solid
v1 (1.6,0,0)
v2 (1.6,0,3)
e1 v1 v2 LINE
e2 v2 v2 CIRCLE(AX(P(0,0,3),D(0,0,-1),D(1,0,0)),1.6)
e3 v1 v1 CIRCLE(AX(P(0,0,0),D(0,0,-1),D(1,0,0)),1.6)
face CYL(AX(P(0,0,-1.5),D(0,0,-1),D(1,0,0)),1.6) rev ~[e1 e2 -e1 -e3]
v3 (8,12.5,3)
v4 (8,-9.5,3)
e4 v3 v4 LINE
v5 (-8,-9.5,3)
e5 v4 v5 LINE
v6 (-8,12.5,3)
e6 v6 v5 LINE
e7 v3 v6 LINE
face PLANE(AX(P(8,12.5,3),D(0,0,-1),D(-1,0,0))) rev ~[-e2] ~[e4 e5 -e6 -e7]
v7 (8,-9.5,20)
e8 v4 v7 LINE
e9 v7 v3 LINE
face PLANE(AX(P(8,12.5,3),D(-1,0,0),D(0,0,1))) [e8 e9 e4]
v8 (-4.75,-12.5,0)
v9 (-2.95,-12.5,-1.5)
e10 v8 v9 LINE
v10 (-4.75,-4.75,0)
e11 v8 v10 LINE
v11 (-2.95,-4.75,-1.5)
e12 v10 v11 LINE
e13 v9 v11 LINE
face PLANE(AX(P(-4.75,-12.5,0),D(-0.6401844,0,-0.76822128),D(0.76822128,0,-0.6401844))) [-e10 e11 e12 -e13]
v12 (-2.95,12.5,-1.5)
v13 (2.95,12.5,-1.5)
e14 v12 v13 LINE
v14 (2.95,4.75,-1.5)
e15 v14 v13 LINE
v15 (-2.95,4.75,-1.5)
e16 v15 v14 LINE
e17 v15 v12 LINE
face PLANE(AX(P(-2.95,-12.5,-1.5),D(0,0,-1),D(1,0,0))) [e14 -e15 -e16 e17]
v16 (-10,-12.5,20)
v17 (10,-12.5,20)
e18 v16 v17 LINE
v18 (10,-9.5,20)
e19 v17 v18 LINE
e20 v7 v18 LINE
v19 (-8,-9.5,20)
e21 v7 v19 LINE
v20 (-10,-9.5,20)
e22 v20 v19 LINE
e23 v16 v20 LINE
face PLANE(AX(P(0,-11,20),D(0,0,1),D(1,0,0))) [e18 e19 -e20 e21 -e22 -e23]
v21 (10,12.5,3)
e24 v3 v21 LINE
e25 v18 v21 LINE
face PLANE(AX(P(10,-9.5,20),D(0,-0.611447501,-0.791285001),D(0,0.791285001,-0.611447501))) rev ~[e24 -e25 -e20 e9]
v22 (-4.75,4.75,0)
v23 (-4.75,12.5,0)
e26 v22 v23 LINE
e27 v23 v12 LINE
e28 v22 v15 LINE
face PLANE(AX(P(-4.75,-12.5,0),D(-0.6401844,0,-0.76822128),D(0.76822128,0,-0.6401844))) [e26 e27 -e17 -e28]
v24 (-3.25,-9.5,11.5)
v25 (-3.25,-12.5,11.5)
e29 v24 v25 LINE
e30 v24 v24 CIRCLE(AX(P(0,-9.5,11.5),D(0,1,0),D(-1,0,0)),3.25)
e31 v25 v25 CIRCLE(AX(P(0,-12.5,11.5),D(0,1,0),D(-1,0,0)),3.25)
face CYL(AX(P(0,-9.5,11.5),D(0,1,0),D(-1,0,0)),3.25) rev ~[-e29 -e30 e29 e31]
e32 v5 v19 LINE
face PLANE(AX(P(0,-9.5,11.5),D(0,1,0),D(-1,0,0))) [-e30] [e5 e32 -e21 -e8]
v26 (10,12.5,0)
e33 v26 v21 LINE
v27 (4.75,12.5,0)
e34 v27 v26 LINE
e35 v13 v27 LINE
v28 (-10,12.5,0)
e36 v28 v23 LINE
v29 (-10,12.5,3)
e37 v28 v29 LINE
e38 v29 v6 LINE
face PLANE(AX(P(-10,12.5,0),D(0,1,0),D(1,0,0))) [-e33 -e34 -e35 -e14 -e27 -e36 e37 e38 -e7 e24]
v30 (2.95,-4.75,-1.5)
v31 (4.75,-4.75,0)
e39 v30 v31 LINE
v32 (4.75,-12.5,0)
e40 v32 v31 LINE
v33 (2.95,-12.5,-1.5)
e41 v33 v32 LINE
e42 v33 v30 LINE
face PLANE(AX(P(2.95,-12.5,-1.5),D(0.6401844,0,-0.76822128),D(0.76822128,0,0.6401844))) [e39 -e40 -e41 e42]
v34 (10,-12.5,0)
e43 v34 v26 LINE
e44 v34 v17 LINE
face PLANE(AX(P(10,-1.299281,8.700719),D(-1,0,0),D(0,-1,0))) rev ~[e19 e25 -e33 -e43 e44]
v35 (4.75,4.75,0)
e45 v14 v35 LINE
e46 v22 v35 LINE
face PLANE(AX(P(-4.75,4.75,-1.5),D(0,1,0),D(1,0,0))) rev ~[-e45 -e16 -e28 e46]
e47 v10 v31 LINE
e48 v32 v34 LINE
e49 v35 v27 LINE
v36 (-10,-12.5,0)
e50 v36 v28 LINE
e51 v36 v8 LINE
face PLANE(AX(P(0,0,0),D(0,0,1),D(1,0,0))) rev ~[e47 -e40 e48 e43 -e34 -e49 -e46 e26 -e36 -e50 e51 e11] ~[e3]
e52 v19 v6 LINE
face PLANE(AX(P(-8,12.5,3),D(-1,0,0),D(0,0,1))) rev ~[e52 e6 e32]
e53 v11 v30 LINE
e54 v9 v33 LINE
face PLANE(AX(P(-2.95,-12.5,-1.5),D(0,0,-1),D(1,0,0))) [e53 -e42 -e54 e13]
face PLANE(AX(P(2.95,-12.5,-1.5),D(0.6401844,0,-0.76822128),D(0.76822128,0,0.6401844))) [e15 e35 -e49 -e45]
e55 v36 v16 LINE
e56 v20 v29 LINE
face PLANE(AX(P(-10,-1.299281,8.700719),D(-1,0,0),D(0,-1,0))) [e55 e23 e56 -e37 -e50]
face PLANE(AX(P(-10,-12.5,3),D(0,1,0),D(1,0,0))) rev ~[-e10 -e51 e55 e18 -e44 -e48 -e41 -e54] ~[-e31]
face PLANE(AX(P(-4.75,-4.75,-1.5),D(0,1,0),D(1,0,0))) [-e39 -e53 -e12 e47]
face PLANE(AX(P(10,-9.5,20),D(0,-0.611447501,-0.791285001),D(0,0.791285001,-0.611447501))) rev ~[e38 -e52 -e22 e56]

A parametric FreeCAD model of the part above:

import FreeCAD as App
import Part
import Sketcher
from FreeCAD import Vector


def add_polygon(sketch, points):
    """Adds a closed chain of lines whose ends are joined by coincident constraints."""
    first, n = sketch.GeometryCount, len(points)
    for a, b in zip(points, points[1:] + points[:1]):
        sketch.addGeometry(Part.LineSegment(App.Vector(*a, 0), App.Vector(*b, 0)), False)
    for i in range(n):
        sketch.addConstraint(Sketcher.Constraint("Coincident", first + i, 2, first + (i + 1) % n, 1))

doc = App.newDocument("Part")
params = doc.addObject("Spreadsheet::Sheet", "Params")
for row, (alias, value) in enumerate([
    ("sketch1_width", "20 mm"),
    ("sketch1_height", "25 mm"),
    ("pad1_length", "3 mm"),
    ("sketch2_width", "20 mm"),
    ("sketch2_height", "3 mm"),
    ("pad2_length", "17 mm"),
    ("sketch3_width", "9.5 mm"),
    ("sketch3_width2", "5.9 mm"),
    ("pad3_length", "25 mm"),
    ("sketch4_diameter", "3.2 mm"),
    ("sketch5_width", "9.5 mm"),
    ("pocket2_length", "1.5 mm"),
    ("sketch6_width", "22 mm"),
    ("sketch6_height", "17 mm"),
    ("pad4_length", "20 mm"),
    ("sketch7_width", "16 mm"),
    ("sketch7_height", "17 mm"),
    ("pocket3_length", "22 mm"),
    ("sketch8_diameter", "6.5 mm"),
], start=1):
    params.set(f"A{row}", alias)
    params.set(f"B{row}", "=" + value)
    params.setAlias(f"B{row}", alias)

body = doc.addObject("PartDesign::Body", "Body")

sketch1 = body.newObject("Sketcher::SketchObject", "Sketch")
sketch1.AttachmentSupport = (doc.getObject("XY_Plane"), [""])
sketch1.MapMode = "FlatFace"
add_polygon(sketch1, [(-10, 12), (-10, -12), (10, -12), (10, 12)])
sketch1.addConstraint(Sketcher.Constraint("Vertical", 0))
sketch1.addConstraint(Sketcher.Constraint("Horizontal", 1))
sketch1.addConstraint(Sketcher.Constraint("Vertical", 2))
sketch1.addConstraint(Sketcher.Constraint("Horizontal", 3))
sketch1.addConstraint(Sketcher.Constraint("Symmetric", 0, 2, 2, 2, -1, 1))
sketch1.addConstraint(Sketcher.Constraint("DistanceX", 1, 1, 1, 2, 20.0))
sketch1.addConstraint(Sketcher.Constraint("DistanceY", 0, 2, 0, 1, 25.0))
sketch1.setExpression("Constraints[9]", "Params.sketch1_width")
sketch1.setExpression("Constraints[10]", "Params.sketch1_height")
pad1 = body.newObject("PartDesign::Pad", "Pad")
pad1.Profile = sketch1
pad1.setExpression("Length", "Params.pad1_length")

sketch2 = body.newObject("Sketcher::SketchObject", "Sketch001")
sketch2.AttachmentSupport = (doc.getObject("XY_Plane"), [""])
sketch2.MapMode = "FlatFace"
sketch2.AttachmentOffset = App.Placement(Vector(0, 0, 3), App.Rotation())
add_polygon(sketch2, [(-10, -9.5), (-10, -12.5), (10, -12.5), (10, -9.5)])
sketch2.addConstraint(Sketcher.Constraint("Vertical", 0))
sketch2.addConstraint(Sketcher.Constraint("Horizontal", 1))
sketch2.addConstraint(Sketcher.Constraint("Vertical", 2))
sketch2.addConstraint(Sketcher.Constraint("Horizontal", 3))
sketch2.addConstraint(Sketcher.Constraint("DistanceX", 1, 1, 1, 2, 20.0))
sketch2.addConstraint(Sketcher.Constraint("DistanceY", 0, 2, 0, 1, 3.0))
sketch2.addConstraint(Sketcher.Constraint("DistanceX", 0, 2, -1, 1, 10.0))
sketch2.addConstraint(Sketcher.Constraint("DistanceY", 0, 2, -1, 1, 12.5))
sketch2.setExpression("Constraints[8]", "Params.sketch2_width")
sketch2.setExpression("Constraints[9]", "Params.sketch2_height")
pad2 = body.newObject("PartDesign::Pad", "Pad001")
pad2.Profile = sketch2
pad2.setExpression("Length", "Params.pad2_length")

sketch3 = body.newObject("Sketcher::SketchObject", "Sketch002")
sketch3.AttachmentSupport = (doc.getObject("XZ_Plane"), [""])
sketch3.MapMode = "FlatFace"
sketch3.AttachmentOffset = App.Placement(Vector(0, 0, 12.5), App.Rotation())
add_polygon(sketch3, [(4.8, 0), (-4.8, 0), (-3, -1.5), (3, -1.5)])
sketch3.addConstraint(Sketcher.Constraint("Horizontal", 0))
sketch3.addConstraint(Sketcher.Constraint("Horizontal", 2))
sketch3.addConstraint(Sketcher.Constraint("Symmetric", 0, 2, 3, 2, -1, 1))
sketch3.addConstraint(Sketcher.Constraint("Equal", 1, 3))
sketch3.addConstraint(Sketcher.Constraint("DistanceX", 0, 2, 0, 1, 9.5))
sketch3.addConstraint(Sketcher.Constraint("DistanceX", 2, 1, 2, 2, 5.9))
sketch3.addConstraint(Sketcher.Constraint("DistanceY", 1, 2, -1, 1, 1.5))
sketch3.setExpression("Constraints[8]", "Params.sketch3_width")
sketch3.setExpression("Constraints[9]", "Params.sketch3_width2")
pad3 = body.newObject("PartDesign::Pad", "Pad002")
pad3.Profile = sketch3
pad3.setExpression("Length", "Params.pad3_length")
pad3.Reversed = True

sketch4 = body.newObject("Sketcher::SketchObject", "Sketch003")
sketch4.AttachmentSupport = (doc.getObject("XY_Plane"), [""])
sketch4.MapMode = "FlatFace"
sketch4.AttachmentOffset = App.Placement(Vector(0, 0, -1.5), App.Rotation())
sketch4.addGeometry(Part.Circle(Vector(0, 0, 0), Vector(0, 0, 1), 1.6), False)
sketch4.addConstraint(Sketcher.Constraint("Coincident", 0, 3, -1, 1))
sketch4.addConstraint(Sketcher.Constraint("Diameter", 0, 3.2))
sketch4.setExpression("Constraints[1]", "Params.sketch4_diameter")
pocket1 = body.newObject("PartDesign::Pocket", "Pocket")
pocket1.Profile = sketch4
pocket1.Type = "ThroughAll"
pocket1.Reversed = True

sketch5 = body.newObject("Sketcher::SketchObject", "Sketch004")
sketch5.AttachmentSupport = (doc.getObject("XY_Plane"), [""])
sketch5.MapMode = "FlatFace"
sketch5.AttachmentOffset = App.Placement(Vector(0, 0, -1.5), App.Rotation())
add_polygon(sketch5, [(-5, -5), (-5, 5), (5, 5), (5, -5)])
sketch5.addConstraint(Sketcher.Constraint("Vertical", 0))
sketch5.addConstraint(Sketcher.Constraint("Horizontal", 1))
sketch5.addConstraint(Sketcher.Constraint("Vertical", 2))
sketch5.addConstraint(Sketcher.Constraint("Horizontal", 3))
sketch5.addConstraint(Sketcher.Constraint("Symmetric", 0, 2, 2, 2, -1, 1))
sketch5.addConstraint(Sketcher.Constraint("Equal", 3, 0))
sketch5.addConstraint(Sketcher.Constraint("DistanceX", 1, 1, 1, 2, 9.5))
sketch5.setExpression("Constraints[10]", "Params.sketch5_width")
pocket2 = body.newObject("PartDesign::Pocket", "Pocket001")
pocket2.Profile = sketch5
pocket2.setExpression("Length", "Params.pocket2_length")
pocket2.Reversed = True

sketch6 = body.newObject("Sketcher::SketchObject", "Sketch005")
sketch6.AttachmentSupport = (doc.getObject("YZ_Plane"), [""])
sketch6.MapMode = "FlatFace"
sketch6.AttachmentOffset = App.Placement(Vector(0, 0, 10), App.Rotation())
add_polygon(sketch6, [(-10, 20), (-10, 3), (12, 3)])
sketch6.addConstraint(Sketcher.Constraint("Vertical", 0))
sketch6.addConstraint(Sketcher.Constraint("Horizontal", 1))
sketch6.addConstraint(Sketcher.Constraint("DistanceX", 1, 1, 1, 2, 22.0))
sketch6.addConstraint(Sketcher.Constraint("DistanceY", 0, 2, 0, 1, 17.0))
sketch6.addConstraint(Sketcher.Constraint("DistanceY", -1, 1, 0, 2, 3.0))
sketch6.addConstraint(Sketcher.Constraint("DistanceX", 0, 2, -1, 1, 9.5))
sketch6.setExpression("Constraints[5]", "Params.sketch6_width")
sketch6.setExpression("Constraints[6]", "Params.sketch6_height")
pad4 = body.newObject("PartDesign::Pad", "Pad003")
pad4.Profile = sketch6
pad4.setExpression("Length", "Params.pad4_length")
pad4.Reversed = True

sketch7 = body.newObject("Sketcher::SketchObject", "Sketch006")
sketch7.AttachmentSupport = (doc.getObject("XZ_Plane"), [""])
sketch7.MapMode = "FlatFace"
sketch7.AttachmentOffset = App.Placement(Vector(0, 0, -12.5), App.Rotation())
add_polygon(sketch7, [(8, 20), (8, 3), (-8, 3), (-8, 20)])
sketch7.addConstraint(Sketcher.Constraint("Vertical", 0))
sketch7.addConstraint(Sketcher.Constraint("Horizontal", 1))
sketch7.addConstraint(Sketcher.Constraint("Vertical", 2))
sketch7.addConstraint(Sketcher.Constraint("Horizontal", 3))
sketch7.addConstraint(Sketcher.Constraint("DistanceX", 1, 2, 1, 1, 16.0))
sketch7.addConstraint(Sketcher.Constraint("DistanceY", 0, 2, 0, 1, 17.0))
sketch7.addConstraint(Sketcher.Constraint("DistanceX", -1, 1, 0, 2, 8.0))
sketch7.addConstraint(Sketcher.Constraint("DistanceY", -1, 1, 0, 2, 3.0))
sketch7.setExpression("Constraints[8]", "Params.sketch7_width")
sketch7.setExpression("Constraints[9]", "Params.sketch7_height")
pocket3 = body.newObject("PartDesign::Pocket", "Pocket002")
pocket3.Profile = sketch7
pocket3.setExpression("Length", "Params.pocket3_length")
pocket3.Reversed = True

sketch8 = body.newObject("Sketcher::SketchObject", "Sketch007")
sketch8.AttachmentSupport = (doc.getObject("XZ_Plane"), [""])
sketch8.MapMode = "FlatFace"
sketch8.AttachmentOffset = App.Placement(Vector(0, 0, 9.5), App.Rotation())
sketch8.addGeometry(Part.Circle(Vector(0, 11.5, 0), Vector(0, 0, 1), 3.2), False)
sketch8.addConstraint(Sketcher.Constraint("PointOnObject", 0, 3, -2))
sketch8.addConstraint(Sketcher.Constraint("Diameter", 0, 6.5))
sketch8.addConstraint(Sketcher.Constraint("DistanceY", -1, 1, 0, 3, 11.5))
sketch8.setExpression("Constraints[1]", "Params.sketch8_diameter")
pocket4 = body.newObject("PartDesign::Pocket", "Pocket003")
pocket4.Profile = sketch8
pocket4.Type = "ThroughAll"
pocket4.Reversed = True

doc.recompute()
